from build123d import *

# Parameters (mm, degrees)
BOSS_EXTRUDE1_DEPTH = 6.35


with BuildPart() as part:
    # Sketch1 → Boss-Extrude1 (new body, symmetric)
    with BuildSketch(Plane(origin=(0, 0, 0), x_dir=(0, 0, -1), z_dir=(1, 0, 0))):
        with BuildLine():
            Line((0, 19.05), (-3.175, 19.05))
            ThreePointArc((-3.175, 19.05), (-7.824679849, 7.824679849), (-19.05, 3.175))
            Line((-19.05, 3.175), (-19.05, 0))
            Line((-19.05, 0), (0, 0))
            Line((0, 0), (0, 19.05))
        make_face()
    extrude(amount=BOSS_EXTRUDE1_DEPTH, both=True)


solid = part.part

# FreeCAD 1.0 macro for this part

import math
import FreeCAD as App
import Part
import Sketcher
from FreeCAD import Vector
Q = App.Units.Quantity

doc = App.newDocument("Part")
body = doc.addObject("PartDesign::Body", "Body")

sketch1 = body.newObject("Sketcher::SketchObject", "Sketch")
sketch1.AttachmentSupport = (doc.getObject("YZ_Plane"), [""])
sketch1.MapMode = "FlatFace"
sketch1.addGeometry([
    Part.LineSegment(Vector(19.1, 0, 0), Vector(19.1, 3.2, 0)),
    Part.ArcOfCircle(Part.Circle(Vector(19.1, 19.1, 0), Vector(0, 0, 1), 15.9), math.radians(-180), math.radians(-90)),
    Part.LineSegment(Vector(3.2, 19.1, 0), Vector(0, 19.1, 0)),
    Part.LineSegment(Vector(0, 19.1, 0), Vector(0, 0, 0)),
    Part.LineSegment(Vector(0, 0, 0), Vector(19.1, 0, 0)),
], False)
sketch1.addConstraint([
    Sketcher.Constraint("Coincident", 0, 2, 1, 2),
    Sketcher.Constraint("Coincident", 1, 1, 2, 1),
    Sketcher.Constraint("Coincident", 2, 2, 3, 1),
    Sketcher.Constraint("Coincident", 3, 2, 4, 1),
    Sketcher.Constraint("Coincident", 4, 2, 0, 1),
    Sketcher.Constraint("Vertical", 0),
    Sketcher.Constraint("Horizontal", 2),
    Sketcher.Constraint("Vertical", 3),
    Sketcher.Constraint("Horizontal", 4),
    Sketcher.Constraint("Coincident", 3, 2, -1, 1),
    Sketcher.Constraint("Vertical", 1, 3, 0, 2),
    Sketcher.Constraint("Equal", 2, 0),
    Sketcher.Constraint("Equal", 4, 3),
    Sketcher.Constraint("Radius", 1, Q("0.625 in")),
    Sketcher.Constraint("DistanceX", 4, 1, 4, 2, Q("0.75 in")),
])
pad1 = body.newObject("PartDesign::Pad", "Pad")
pad1.Profile = sketch1
pad1.Length = Q("0.5 in")
pad1.Midplane = True

doc.recompute()
